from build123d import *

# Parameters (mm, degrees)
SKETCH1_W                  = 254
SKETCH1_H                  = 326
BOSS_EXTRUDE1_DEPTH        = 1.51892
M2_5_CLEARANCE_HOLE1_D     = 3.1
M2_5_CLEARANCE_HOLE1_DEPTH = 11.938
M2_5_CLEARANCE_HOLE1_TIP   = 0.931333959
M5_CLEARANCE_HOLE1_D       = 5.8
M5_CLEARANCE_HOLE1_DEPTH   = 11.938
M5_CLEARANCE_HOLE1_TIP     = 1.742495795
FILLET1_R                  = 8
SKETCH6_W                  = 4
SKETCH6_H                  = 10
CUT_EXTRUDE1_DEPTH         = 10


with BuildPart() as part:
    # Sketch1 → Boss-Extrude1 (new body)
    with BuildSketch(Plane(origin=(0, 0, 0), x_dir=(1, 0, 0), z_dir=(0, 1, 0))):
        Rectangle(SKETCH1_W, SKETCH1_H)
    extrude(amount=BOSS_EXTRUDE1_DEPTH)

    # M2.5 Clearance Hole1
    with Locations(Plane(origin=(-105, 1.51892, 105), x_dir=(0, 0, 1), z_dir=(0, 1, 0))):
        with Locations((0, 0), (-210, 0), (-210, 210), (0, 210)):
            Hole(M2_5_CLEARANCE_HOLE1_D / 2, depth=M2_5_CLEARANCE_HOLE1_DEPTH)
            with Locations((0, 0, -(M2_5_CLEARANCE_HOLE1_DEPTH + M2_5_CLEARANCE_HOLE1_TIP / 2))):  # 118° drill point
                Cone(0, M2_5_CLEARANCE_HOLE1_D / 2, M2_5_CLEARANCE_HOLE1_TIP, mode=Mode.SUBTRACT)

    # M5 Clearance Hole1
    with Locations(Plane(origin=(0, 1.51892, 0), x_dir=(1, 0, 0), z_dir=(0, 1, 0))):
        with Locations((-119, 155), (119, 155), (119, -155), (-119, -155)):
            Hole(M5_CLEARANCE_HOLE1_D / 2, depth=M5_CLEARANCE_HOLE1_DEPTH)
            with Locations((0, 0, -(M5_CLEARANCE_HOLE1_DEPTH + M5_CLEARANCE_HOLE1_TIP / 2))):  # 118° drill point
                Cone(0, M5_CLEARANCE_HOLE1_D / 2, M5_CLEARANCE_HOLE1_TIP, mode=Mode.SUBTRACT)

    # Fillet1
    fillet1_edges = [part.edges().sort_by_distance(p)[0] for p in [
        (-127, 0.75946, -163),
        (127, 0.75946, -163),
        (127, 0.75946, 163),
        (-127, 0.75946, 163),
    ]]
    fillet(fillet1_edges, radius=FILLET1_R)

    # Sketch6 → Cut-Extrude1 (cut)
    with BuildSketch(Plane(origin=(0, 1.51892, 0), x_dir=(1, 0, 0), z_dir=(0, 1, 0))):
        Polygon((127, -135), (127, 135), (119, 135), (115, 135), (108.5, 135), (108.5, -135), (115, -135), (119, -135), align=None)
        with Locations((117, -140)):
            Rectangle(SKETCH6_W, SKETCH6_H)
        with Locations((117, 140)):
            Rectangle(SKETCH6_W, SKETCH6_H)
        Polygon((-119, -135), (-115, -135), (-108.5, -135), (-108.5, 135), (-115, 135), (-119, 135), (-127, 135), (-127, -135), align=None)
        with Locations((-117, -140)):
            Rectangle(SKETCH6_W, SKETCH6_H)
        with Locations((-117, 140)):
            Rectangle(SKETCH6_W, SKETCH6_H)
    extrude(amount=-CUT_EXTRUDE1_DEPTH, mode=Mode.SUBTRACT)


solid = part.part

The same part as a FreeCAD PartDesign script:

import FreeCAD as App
import Part
import Sketcher
from FreeCAD import Vector


def edges_at(feature, points):
    """Names of the edges that pass closest to the given points."""
    edges = feature.Shape.Edges
    near = lambda p: min(range(len(edges)), key=lambda i: edges[i].distToShape(Part.Vertex(*p))[0])
    return sorted({f"Edge{near(p) + 1}" for p in points})


def add_polygon(sketch, points):
    """Adds a closed chain of lines whose ends are joined by coincident constraints."""
    first, n = sketch.GeometryCount, len(points)
    for a, b in zip(points, points[1:] + points[:1]):
        sketch.addGeometry(Part.LineSegment(App.Vector(*a, 0), App.Vector(*b, 0)), False)
    for i in range(n):
        sketch.addConstraint(Sketcher.Constraint("Coincident", first + i, 2, first + (i + 1) % n, 1))

doc = App.newDocument("Part")
params = doc.addObject("Spreadsheet::Sheet", "Params")
for row, (alias, value) in enumerate([
    ("sketch1_width", "254 mm"),
    ("sketch1_height", "326 mm"),
    ("pad1_length", "1.51892 mm"),
    ("sketch2_diameter", "3.1 mm"),
    ("hole_diameter", "3.1 mm"),
    ("hole_depth", "11.938 mm"),
    ("sketch3_diameter", "5.8 mm"),
    ("hole2_diameter", "5.8 mm"),
    ("hole2_depth", "11.938 mm"),
    ("fillet_radius", "8 mm"),
    ("sketch4_width", "8 mm"),
    ("sketch4_width2", "4 mm"),
    ("sketch4_height", "270 mm"),
    ("sketch4_height2", "10 mm"),
    ("sketch4_width3", "6.5 mm"),
    ("pocket1_length", "10 mm"),
], start=1):
    params.set(f"A{row}", alias)
    params.set(f"B{row}", "=" + value)
    params.setAlias(f"B{row}", alias)

body = doc.addObject("PartDesign::Body", "Body")

# Sketch on XZ plane
sketch1 = body.newObject("Sketcher::SketchObject", "Sketch")
sketch1.AttachmentSupport = (doc.getObject("XZ_Plane"), [""])
sketch1.MapMode = "FlatFace"
add_polygon(sketch1, [(-127, -163), (-127, 163), (127, 163), (127, -163)])  # lines 0-3
sketch1.addConstraint([
    Sketcher.Constraint("Vertical", 0),
    Sketcher.Constraint("Horizontal", 1),
    Sketcher.Constraint("Vertical", 2),
    Sketcher.Constraint("Horizontal", 3),
    Sketcher.Constraint("Symmetric", 0, 2, 2, 2, -1, 1),
    Sketcher.Constraint("DistanceX", 1, 1, 1, 2, 254.0),
    Sketcher.Constraint("DistanceY", 0, 1, 0, 2, 326.0),
])
sketch1.setExpression("Constraints[9]", "Params.sketch1_width")
sketch1.setExpression("Constraints[10]", "Params.sketch1_height")
pad1 = body.newObject("PartDesign::Pad", "Pad")
pad1.Profile = sketch1
pad1.setExpression("Length", "Params.pad1_length")
pad1.Reversed = True

# Sketch on XZ plane
sketch2 = body.newObject("Sketcher::SketchObject", "Sketch001")
sketch2.AttachmentSupport = (doc.getObject("XZ_Plane"), [""])
sketch2.MapMode = "FlatFace"
sketch2.AttachmentOffset = App.Placement(Vector(0, 0, -1.51892), App.Rotation())
sketch2.addGeometry([
    Part.Circle(Vector(-105, 105, 0), Vector(0, 0, 1), 1.55),
    Part.Circle(Vector(-105, -105, 0), Vector(0, 0, 1), 1.55),
    Part.Circle(Vector(105, -105, 0), Vector(0, 0, 1), 1.55),
    Part.Circle(Vector(105, 105, 0), Vector(0, 0, 1), 1.55),
], False)
sketch2.addConstraint([
    Sketcher.Constraint("Equal", 0, 1),
    Sketcher.Constraint("Equal", 1, 2),
    Sketcher.Constraint("Equal", 2, 3),
    Sketcher.Constraint("Symmetric", 0, 3, 2, 3, -1, 1),
    Sketcher.Constraint("Symmetric", 1, 3, 3, 3, -1, 1),
    Sketcher.Constraint("Symmetric", 1, 3, 2, 3, -2),
    Sketcher.Constraint("Diameter", 0, 3.1),
    Sketcher.Constraint("DistanceX", 0, 3, -1, 1, 105.0),
    Sketcher.Constraint("DistanceY", -1, 1, 0, 3, 105.0),
])
sketch2.setExpression("Constraints[6]", "Params.sketch2_diameter")
doc.recompute()
hole = body.newObject("PartDesign::Hole", "Hole")
hole.Profile = sketch2
hole.ThreadType = "None"
hole.setExpression("Diameter", "Params.hole_diameter")
hole.DepthType = "Dimension"
hole.setExpression("Depth", "Params.hole_depth")
hole.DrillPoint = "Angled"
hole.DrillPointAngle = 118
hole.Reversed = True

# Sketch on XZ plane
sketch3 = body.newObject("Sketcher::SketchObject", "Sketch002")
sketch3.AttachmentSupport = (doc.getObject("XZ_Plane"), [""])
sketch3.MapMode = "FlatFace"
sketch3.AttachmentOffset = App.Placement(Vector(0, 0, -1.51892), App.Rotation())
sketch3.addGeometry([
    Part.Circle(Vector(-119, -155, 0), Vector(0, 0, 1), 2.9),
    Part.Circle(Vector(119, -155, 0), Vector(0, 0, 1), 2.9),
    Part.Circle(Vector(119, 155, 0), Vector(0, 0, 1), 2.9),
    Part.Circle(Vector(-119, 155, 0), Vector(0, 0, 1), 2.9),
], False)
sketch3.addConstraint([
    Sketcher.Constraint("Equal", 0, 1),
    Sketcher.Constraint("Equal", 1, 2),
    Sketcher.Constraint("Equal", 2, 3),
    Sketcher.Constraint("Symmetric", 0, 3, 2, 3, -1, 1),
    Sketcher.Constraint("Symmetric", 1, 3, 3, 3, -1, 1),
    Sketcher.Constraint("Symmetric", 0, 3, 1, 3, -2),
    Sketcher.Constraint("Diameter", 0, 5.8),
    Sketcher.Constraint("DistanceX", 0, 3, -1, 1, 119.0),
    Sketcher.Constraint("DistanceY", 0, 3, -1, 1, 155.0),
])
sketch3.setExpression("Constraints[6]", "Params.sketch3_diameter")
doc.recompute()
hole2 = body.newObject("PartDesign::Hole", "Hole001")
hole2.Profile = sketch3
hole2.ThreadType = "None"
hole2.setExpression("Diameter", "Params.hole2_diameter")
hole2.DepthType = "Dimension"
hole2.setExpression("Depth", "Params.hole2_depth")
hole2.DrillPoint = "Angled"
hole2.DrillPointAngle = 118
hole2.Reversed = True
doc.recompute()

fillet = body.newObject("PartDesign::Fillet", "Fillet")
fillet.Base = (hole2, edges_at(hole2, [
    (-127, 0.759, -163),
    (127, 0.759, -163),
    (127, 0.759, 163),
    (-127, 0.759, 163),
]))
fillet.setExpression("Radius", "Params.fillet_radius")

# Sketch on XZ plane
sketch4 = body.newObject("Sketcher::SketchObject", "Sketch003")
sketch4.AttachmentSupport = (doc.getObject("XZ_Plane"), [""])
sketch4.MapMode = "FlatFace"
sketch4.AttachmentOffset = App.Placement(Vector(0, 0, -1.51892), App.Rotation())
add_polygon(sketch4, [(127, 135), (127, -135), (119, -135), (119, -145), (115, -145), (115, -135), (108.5, -135), (108.5, 135), (115, 135), (115, 145), (119, 145), (119, 135)])  # lines 0-11
add_polygon(sketch4, [(-108.5, 135), (-108.5, -135), (-115, -135), (-115, -145), (-119, -145), (-119, -135), (-127, -135), (-127, 135), (-119, 135), (-119, 145), (-115, 145), (-115, 135)])  # lines 12-23
sketch4.addConstraint([
    Sketcher.Constraint("Vertical", 0),
    Sketcher.Constraint("Horizontal", 1),
    Sketcher.Constraint("Vertical", 2),
    Sketcher.Constraint("Horizontal", 3),
    Sketcher.Constraint("Vertical", 4),
    Sketcher.Constraint("Horizontal", 5),
    Sketcher.Constraint("Vertical", 6),
    Sketcher.Constraint("Horizontal", 7),
    Sketcher.Constraint("Vertical", 8),
    Sketcher.Constraint("Horizontal", 9),
    Sketcher.Constraint("Vertical", 10),
    Sketcher.Constraint("Horizontal", 11),
    Sketcher.Constraint("Vertical", 12),
    Sketcher.Constraint("Horizontal", 13),
    Sketcher.Constraint("Vertical", 14),
    Sketcher.Constraint("Horizontal", 15),
    Sketcher.Constraint("Vertical", 16),
    Sketcher.Constraint("Horizontal", 17),
    Sketcher.Constraint("Vertical", 18),
    Sketcher.Constraint("Horizontal", 19),
    Sketcher.Constraint("Vertical", 20),
    Sketcher.Constraint("Horizontal", 21),
    Sketcher.Constraint("Vertical", 22),
    Sketcher.Constraint("Horizontal", 23),
    Sketcher.Constraint("Symmetric", 6, 2, 12, 2, -1, 1),
    Sketcher.Constraint("Symmetric", 8, 2, 14, 2, -1, 1),
    Sketcher.Constraint("Symmetric", 10, 2, 16, 2, -1, 1),
    Sketcher.Constraint("Symmetric", 0, 2, 18, 2, -1, 1),
    Sketcher.Constraint("Symmetric", 2, 2, 20, 2, -1, 1),
    Sketcher.Constraint("Symmetric", 4, 2, 22, 2, -1, 1),
    Sketcher.Constraint("Symmetric", 4, 2, 13, 2, -2),
    Sketcher.Constraint("Symmetric", 2, 2, 15, 2, -2),
    Sketcher.Constraint("Horizontal", 1, 2, 4, 2),
    Sketcher.Constraint("Horizontal", 7, 2, 10, 2),
    Sketcher.Constraint("DistanceX", 1, 2, 1, 1, 8.0),
    Sketcher.Constraint("DistanceX", 3, 2, 3, 1, 4.0),
    Sketcher.Constraint("DistanceY", 0, 2, 0, 1, 270.0),
    Sketcher.Constraint("DistanceY", 2, 2, 2, 1, 10.0),
    Sketcher.Constraint("DistanceX", 5, 2, 5, 1, 6.5),
    Sketcher.Constraint("DistanceX", -1, 1, 0, 2, 127.0),
])
sketch4.setExpression("Constraints[58]", "Params.sketch4_width")
sketch4.setExpression("Constraints[59]", "Params.sketch4_width2")
sketch4.setExpression("Constraints[60]", "Params.sketch4_height")
sketch4.setExpression("Constraints[61]", "Params.sketch4_height2")
sketch4.setExpression("Constraints[62]", "Params.sketch4_width3")
pocket1 = body.newObject("PartDesign::Pocket", "Pocket")
pocket1.Profile = sketch4
pocket1.setExpression("Length", "Params.pocket1_length")
pocket1.Reversed = True

doc.recompute()
